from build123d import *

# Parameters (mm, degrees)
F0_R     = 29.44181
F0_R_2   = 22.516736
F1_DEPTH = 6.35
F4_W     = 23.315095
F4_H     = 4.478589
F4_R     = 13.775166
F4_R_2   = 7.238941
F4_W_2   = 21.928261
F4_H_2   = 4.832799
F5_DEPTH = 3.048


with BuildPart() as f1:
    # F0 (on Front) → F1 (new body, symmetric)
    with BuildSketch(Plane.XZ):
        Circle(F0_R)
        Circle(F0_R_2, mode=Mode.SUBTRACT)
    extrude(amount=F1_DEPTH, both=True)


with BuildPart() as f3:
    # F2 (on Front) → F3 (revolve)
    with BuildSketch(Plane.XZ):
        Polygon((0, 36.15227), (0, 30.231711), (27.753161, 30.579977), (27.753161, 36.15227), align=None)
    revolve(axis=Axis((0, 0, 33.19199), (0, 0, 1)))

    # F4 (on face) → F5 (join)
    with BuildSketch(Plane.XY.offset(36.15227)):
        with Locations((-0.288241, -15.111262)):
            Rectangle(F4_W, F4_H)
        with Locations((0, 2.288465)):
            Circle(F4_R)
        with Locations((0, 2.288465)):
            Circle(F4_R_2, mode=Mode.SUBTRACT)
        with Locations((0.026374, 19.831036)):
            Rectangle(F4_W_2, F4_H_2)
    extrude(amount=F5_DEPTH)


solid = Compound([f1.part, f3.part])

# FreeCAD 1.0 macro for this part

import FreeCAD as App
import Part
import Sketcher

V = App.Vector

doc = App.newDocument("Part")
params = doc.addObject("Spreadsheet::Sheet", "Params")
for row, (alias, value) in enumerate([
    ("pad1_length", "0.5 in"),
    ("revolution_angle", "360 deg"),
    ("pad2_length", "0.12 in"),
], start=1):
    params.set(f"A{row}", alias)
    params.set(f"B{row}", "=" + value)
    params.setAlias(f"B{row}", alias)

body = doc.addObject("PartDesign::Body", "Body")

# Sketch on XZ plane
sketch1 = body.newObject("Sketcher::SketchObject", "Sketch")
sketch1.AttachmentSupport = (doc.getObject("XZ_Plane"), [""])
sketch1.MapMode = "FlatFace"
sketch1.addGeometry([
    Part.Circle(V(0, 0, 0), V(0, 0, 1), 29),
    Part.Circle(V(0, 0, 0), V(0, 0, 1), 23),
], False)
sketch1.addConstraint([
    Sketcher.Constraint("Coincident", 0, 3, -1, 1),
    Sketcher.Constraint("Coincident", 1, 3, -1, 1),
    Sketcher.Constraint("Diameter", 0, 58.88362),
    Sketcher.Constraint("Diameter", 1, 45.033472),
])
pad1 = body.newObject("PartDesign::Pad", "Pad")
pad1.Profile = sketch1
pad1.setExpression("Length", "Params.pad1_length")
pad1.Midplane = True
body2 = doc.addObject("PartDesign::Body", "Body001")

# Sketch on XZ plane
sketch2 = body2.newObject("Sketcher::SketchObject", "Sketch001")
sketch2.AttachmentSupport = (doc.getObject("XZ_Plane001"), [""])
sketch2.MapMode = "FlatFace"
sketch2.addGeometry([
    Part.LineSegment(V(0, 36, 0), V(0, 30, 0)),
    Part.LineSegment(V(0, 30, 0), V(28, 31, 0)),
    Part.LineSegment(V(28, 31, 0), V(28, 36, 0)),
    Part.LineSegment(V(28, 36, 0), V(0, 36, 0)),
], False)
sketch2.addConstraint([
    Sketcher.Constraint("Coincident", 0, 2, 1, 1),
    Sketcher.Constraint("Coincident", 1, 2, 2, 1),
    Sketcher.Constraint("Coincident", 2, 2, 3, 1),
    Sketcher.Constraint("Coincident", 3, 2, 0, 1),
    Sketcher.Constraint("Vertical", 0),
    Sketcher.Constraint("Vertical", 2),
    Sketcher.Constraint("Horizontal", 3),
    Sketcher.Constraint("PointOnObject", 0, 2, -2),
    Sketcher.Constraint("DistanceX", 3, 2, 3, 1, 27.753161),
    Sketcher.Constraint("DistanceY", 0, 2, 0, 1, 5.920559),
    Sketcher.Constraint("DistanceY", 2, 1, 2, 2, 5.572293),
    Sketcher.Constraint("DistanceY", -1, 1, 0, 2, 30.231711),
])
revolution = body2.newObject("PartDesign::Revolution", "Revolution")
revolution.Profile = sketch2
revolution.ReferenceAxis = (sketch2, ["V_Axis"])
revolution.setExpression("Angle", "Params.revolution_angle")

# Sketch on XY plane
sketch3 = body2.newObject("Sketcher::SketchObject", "Sketch002")
sketch3.AttachmentSupport = (doc.getObject("XY_Plane001"), [""])
sketch3.MapMode = "FlatFace"
sketch3.AttachmentOffset = App.Placement(V(0, 0, 36.15227), App.Rotation())
sketch3.addGeometry([
    Part.LineSegment(V(-11.9, -12.9, 0), V(-11.9, -17.4, 0)),  # 0
    Part.LineSegment(V(-11.9, -17.4, 0), V(11.4, -17.4, 0)),  # 1
    Part.LineSegment(V(11.4, -17.4, 0), V(11.4, -12.9, 0)),  # 2
    Part.LineSegment(V(11.4, -12.9, 0), V(-11.9, -12.9, 0)),  # 3
    Part.Circle(V(0, 2.3, 0), V(0, 0, 1), 13.8),  # 4
    Part.Circle(V(0, 2.3, 0), V(0, 0, 1), 7.2),  # 5
    Part.LineSegment(V(-10.9, 22.2, 0), V(-10.9, 17.4, 0)),  # 6
    Part.LineSegment(V(-10.9, 17.4, 0), V(11, 17.4, 0)),  # 7
    Part.LineSegment(V(11, 17.4, 0), V(11, 22.2, 0)),  # 8
    Part.LineSegment(V(11, 22.2, 0), V(-10.9, 22.2, 0)),  # 9
], False)
sketch3.addConstraint([
    Sketcher.Constraint("Coincident", 0, 2, 1, 1),
    Sketcher.Constraint("Coincident", 1, 2, 2, 1),
    Sketcher.Constraint("Coincident", 2, 2, 3, 1),
    Sketcher.Constraint("Coincident", 3, 2, 0, 1),
    Sketcher.Constraint("Coincident", 6, 2, 7, 1),
    Sketcher.Constraint("Coincident", 7, 2, 8, 1),
    Sketcher.Constraint("Coincident", 8, 2, 9, 1),
    Sketcher.Constraint("Coincident", 9, 2, 6, 1),
    Sketcher.Constraint("Vertical", 0),
    Sketcher.Constraint("Horizontal", 1),
    Sketcher.Constraint("Vertical", 2),
    Sketcher.Constraint("Horizontal", 3),
    Sketcher.Constraint("Vertical", 6),
    Sketcher.Constraint("Horizontal", 7),
    Sketcher.Constraint("Vertical", 8),
    Sketcher.Constraint("Horizontal", 9),
    Sketcher.Constraint("Coincident", 5, 3, 4, 3),
    Sketcher.Constraint("PointOnObject", 4, 3, -2),
    Sketcher.Constraint("Diameter", 5, 14.477882),
    Sketcher.Constraint("Diameter", 4, 27.550332),
    Sketcher.Constraint("DistanceY", 6, 2, 6, 1, 4.832799),
    Sketcher.Constraint("DistanceX", 7, 1, 7, 2, 21.928261),
    Sketcher.Constraint("DistanceY", 0, 2, 0, 1, 4.478589),
    Sketcher.Constraint("DistanceX", 1, 1, 1, 2, 23.315095),
    Sketcher.Constraint("DistanceX", 0, 2, -1, 1, 11.945789),
    Sketcher.Constraint("DistanceY", 0, 2, 4, 3, 19.639021),
    Sketcher.Constraint("DistanceY", 4, 3, 6, 2, 15.126171),
    Sketcher.Constraint("DistanceY", -1, 1, 4, 3, 2.288465),
    Sketcher.Constraint("DistanceX", 6, 2, -1, 1, 10.937757),
])
pad2 = body2.newObject("PartDesign::Pad", "Pad001")
pad2.Profile = sketch3
pad2.setExpression("Length", "Params.pad2_length")

doc.recompute()
